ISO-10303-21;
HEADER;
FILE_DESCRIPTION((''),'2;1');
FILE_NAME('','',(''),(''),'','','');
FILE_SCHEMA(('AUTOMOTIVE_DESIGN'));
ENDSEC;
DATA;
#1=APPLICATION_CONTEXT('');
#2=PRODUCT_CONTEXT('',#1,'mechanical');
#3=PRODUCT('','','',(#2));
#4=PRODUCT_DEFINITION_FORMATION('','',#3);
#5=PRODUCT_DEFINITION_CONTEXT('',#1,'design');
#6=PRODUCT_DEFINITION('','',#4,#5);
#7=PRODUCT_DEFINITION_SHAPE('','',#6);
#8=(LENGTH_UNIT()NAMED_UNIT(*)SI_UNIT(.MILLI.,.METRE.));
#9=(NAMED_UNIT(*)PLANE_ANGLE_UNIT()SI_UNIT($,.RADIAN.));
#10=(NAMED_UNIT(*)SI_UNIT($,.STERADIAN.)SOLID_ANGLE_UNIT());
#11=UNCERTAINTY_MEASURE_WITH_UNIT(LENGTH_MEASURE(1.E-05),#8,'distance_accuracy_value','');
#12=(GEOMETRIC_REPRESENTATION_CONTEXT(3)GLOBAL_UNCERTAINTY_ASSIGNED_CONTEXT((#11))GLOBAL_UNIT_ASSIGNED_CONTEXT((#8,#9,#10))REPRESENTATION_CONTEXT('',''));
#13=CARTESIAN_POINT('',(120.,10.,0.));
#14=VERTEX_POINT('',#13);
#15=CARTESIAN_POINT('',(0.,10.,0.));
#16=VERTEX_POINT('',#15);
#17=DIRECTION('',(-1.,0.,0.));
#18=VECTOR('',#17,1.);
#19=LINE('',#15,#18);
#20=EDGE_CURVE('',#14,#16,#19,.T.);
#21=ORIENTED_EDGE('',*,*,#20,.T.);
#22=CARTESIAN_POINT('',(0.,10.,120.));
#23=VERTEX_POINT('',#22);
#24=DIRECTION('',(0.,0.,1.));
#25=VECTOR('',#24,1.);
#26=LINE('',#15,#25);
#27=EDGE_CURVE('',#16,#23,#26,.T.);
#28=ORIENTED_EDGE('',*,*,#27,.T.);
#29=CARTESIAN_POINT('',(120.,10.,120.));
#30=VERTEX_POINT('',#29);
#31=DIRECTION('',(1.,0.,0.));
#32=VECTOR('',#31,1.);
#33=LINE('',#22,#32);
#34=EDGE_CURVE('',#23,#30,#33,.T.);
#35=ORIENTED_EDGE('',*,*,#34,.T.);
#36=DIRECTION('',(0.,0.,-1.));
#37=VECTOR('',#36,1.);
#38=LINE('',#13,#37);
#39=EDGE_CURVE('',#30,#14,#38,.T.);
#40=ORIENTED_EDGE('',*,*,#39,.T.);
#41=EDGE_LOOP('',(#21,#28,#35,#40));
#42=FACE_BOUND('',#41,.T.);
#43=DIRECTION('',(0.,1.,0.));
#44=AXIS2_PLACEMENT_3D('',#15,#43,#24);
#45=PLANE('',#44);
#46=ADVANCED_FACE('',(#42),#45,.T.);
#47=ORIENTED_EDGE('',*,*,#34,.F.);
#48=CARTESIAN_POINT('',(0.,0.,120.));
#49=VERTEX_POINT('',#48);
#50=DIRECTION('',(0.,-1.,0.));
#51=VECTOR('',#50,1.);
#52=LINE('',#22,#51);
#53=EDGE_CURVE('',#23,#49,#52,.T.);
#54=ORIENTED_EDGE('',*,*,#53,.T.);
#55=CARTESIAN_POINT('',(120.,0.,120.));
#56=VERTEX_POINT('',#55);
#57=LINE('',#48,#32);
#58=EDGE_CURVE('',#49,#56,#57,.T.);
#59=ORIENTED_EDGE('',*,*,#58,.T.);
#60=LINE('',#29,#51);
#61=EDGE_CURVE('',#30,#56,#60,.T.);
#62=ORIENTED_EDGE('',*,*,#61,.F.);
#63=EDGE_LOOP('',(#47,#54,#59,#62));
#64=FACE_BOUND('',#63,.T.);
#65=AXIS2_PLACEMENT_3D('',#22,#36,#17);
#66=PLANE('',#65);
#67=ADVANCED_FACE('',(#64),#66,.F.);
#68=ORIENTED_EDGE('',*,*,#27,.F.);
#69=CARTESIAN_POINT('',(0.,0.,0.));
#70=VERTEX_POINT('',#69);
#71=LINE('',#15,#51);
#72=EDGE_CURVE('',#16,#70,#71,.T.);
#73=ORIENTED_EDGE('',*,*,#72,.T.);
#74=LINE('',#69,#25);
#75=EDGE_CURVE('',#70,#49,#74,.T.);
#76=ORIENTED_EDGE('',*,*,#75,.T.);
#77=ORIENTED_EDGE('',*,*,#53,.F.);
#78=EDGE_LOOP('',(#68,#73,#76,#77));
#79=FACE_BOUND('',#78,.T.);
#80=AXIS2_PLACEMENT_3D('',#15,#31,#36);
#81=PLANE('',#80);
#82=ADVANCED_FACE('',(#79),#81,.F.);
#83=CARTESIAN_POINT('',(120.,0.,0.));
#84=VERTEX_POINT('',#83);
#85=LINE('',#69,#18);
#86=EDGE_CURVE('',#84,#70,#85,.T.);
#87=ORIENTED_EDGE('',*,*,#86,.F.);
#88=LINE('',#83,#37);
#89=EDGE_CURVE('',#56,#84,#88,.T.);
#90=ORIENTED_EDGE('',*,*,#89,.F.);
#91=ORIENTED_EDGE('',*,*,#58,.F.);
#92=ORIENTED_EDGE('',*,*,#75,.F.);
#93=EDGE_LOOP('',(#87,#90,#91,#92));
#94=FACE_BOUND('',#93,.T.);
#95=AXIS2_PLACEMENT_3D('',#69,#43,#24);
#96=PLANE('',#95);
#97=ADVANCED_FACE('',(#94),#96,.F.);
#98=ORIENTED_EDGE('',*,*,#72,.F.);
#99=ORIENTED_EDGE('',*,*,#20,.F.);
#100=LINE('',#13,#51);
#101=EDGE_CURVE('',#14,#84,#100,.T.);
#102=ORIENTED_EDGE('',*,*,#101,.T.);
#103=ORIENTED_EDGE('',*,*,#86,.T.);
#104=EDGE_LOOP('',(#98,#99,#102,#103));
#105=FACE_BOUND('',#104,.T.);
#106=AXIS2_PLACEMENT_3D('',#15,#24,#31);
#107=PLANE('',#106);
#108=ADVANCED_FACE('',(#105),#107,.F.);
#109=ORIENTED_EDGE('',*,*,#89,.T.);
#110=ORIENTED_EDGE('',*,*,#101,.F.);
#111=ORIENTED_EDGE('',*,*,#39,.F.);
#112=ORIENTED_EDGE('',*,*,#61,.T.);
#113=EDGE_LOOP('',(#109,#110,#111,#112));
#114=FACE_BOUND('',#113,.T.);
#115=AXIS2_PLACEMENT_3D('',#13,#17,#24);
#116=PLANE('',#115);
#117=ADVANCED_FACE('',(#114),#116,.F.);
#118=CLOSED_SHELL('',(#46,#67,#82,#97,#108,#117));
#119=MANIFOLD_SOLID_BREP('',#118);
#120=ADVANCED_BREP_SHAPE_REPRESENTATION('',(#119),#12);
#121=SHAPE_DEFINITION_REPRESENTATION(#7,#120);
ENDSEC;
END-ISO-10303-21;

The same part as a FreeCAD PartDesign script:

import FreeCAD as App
import Part
import Sketcher


def add_polygon(sketch, points):
    """Adds a closed chain of lines whose ends are joined by coincident constraints."""
    first, n = sketch.GeometryCount, len(points)
    for a, b in zip(points, points[1:] + points[:1]):
        sketch.addGeometry(Part.LineSegment(App.Vector(*a, 0), App.Vector(*b, 0)), False)
    for i in range(n):
        sketch.addConstraint(Sketcher.Constraint("Coincident", first + i, 2, first + (i + 1) % n, 1))

doc = App.newDocument("Part")
body = doc.addObject("PartDesign::Body", "Body")

# Sketch on XZ plane
sketch1 = body.newObject("Sketcher::SketchObject", "Sketch")
sketch1.AttachmentSupport = (doc.getObject("XZ_Plane"), [""])
sketch1.MapMode = "FlatFace"
add_polygon(sketch1, [(0, 0), (0, 120), (120, 120), (120, 0)])  # lines 0-3
sketch1.addConstraint(Sketcher.Constraint("Vertical", 0))
sketch1.addConstraint(Sketcher.Constraint("Horizontal", 1))
sketch1.addConstraint(Sketcher.Constraint("Vertical", 2))
sketch1.addConstraint(Sketcher.Constraint("Horizontal", 3))
sketch1.addConstraint(Sketcher.Constraint("Coincident", 3, 2, -1, 1))
sketch1.addConstraint(Sketcher.Constraint("Equal", 3, 0))
sketch1.addConstraint(Sketcher.Constraint("DistanceX", 1, 1, 1, 2, 120.0))
pad1 = body.newObject("PartDesign::Pad", "Pad")
pad1.Profile = sketch1
pad1.Length = 10
pad1.Reversed = True

doc.recompute()
